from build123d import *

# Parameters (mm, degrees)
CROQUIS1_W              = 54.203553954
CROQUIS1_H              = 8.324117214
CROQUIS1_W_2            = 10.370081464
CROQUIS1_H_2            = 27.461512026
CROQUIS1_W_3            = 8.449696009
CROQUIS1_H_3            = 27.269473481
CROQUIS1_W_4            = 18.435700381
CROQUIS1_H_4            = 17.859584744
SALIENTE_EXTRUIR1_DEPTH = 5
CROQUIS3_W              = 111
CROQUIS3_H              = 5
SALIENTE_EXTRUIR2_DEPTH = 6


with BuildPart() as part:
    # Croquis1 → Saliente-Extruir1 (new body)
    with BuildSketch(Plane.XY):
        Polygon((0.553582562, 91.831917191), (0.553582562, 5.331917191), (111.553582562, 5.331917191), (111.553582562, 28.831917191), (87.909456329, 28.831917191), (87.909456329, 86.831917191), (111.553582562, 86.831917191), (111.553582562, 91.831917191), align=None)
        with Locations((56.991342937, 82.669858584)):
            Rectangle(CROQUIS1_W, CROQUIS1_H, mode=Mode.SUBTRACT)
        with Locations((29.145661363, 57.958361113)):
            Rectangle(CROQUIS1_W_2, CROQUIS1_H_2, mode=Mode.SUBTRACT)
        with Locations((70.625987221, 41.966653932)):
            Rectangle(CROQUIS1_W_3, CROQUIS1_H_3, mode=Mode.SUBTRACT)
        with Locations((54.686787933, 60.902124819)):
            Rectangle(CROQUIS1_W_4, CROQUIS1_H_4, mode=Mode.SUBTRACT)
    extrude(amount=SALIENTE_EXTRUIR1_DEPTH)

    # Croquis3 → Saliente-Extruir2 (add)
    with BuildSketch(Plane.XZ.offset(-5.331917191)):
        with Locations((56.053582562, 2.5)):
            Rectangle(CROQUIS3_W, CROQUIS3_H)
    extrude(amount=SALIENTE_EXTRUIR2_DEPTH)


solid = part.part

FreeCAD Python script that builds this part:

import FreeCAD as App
import Part
import Sketcher

V = App.Vector

doc = App.newDocument("Part")
body = doc.addObject("PartDesign::Body", "Body")

# Sketch on XY plane
sketch1 = doc.addObject("Sketcher::SketchObject", "Sketch")
body.addObject(sketch1)
sketch1.AttachmentSupport = (doc.XY_Plane, [""])
sketch1.MapMode = "FlatFace"
sketch1.addGeometry([
    Part.LineSegment(V(1, 92, 0), V(1, 5, 0)),  # 0
    Part.LineSegment(V(1, 5, 0), V(112, 5, 0)),  # 1
    Part.LineSegment(V(112, 5, 0), V(112, 29, 0)),  # 2
    Part.LineSegment(V(112, 29, 0), V(88, 29, 0)),  # 3
    Part.LineSegment(V(88, 29, 0), V(88, 87, 0)),  # 4
    Part.LineSegment(V(88, 87, 0), V(112, 87, 0)),  # 5
    Part.LineSegment(V(112, 87, 0), V(112, 92, 0)),  # 6
    Part.LineSegment(V(112, 92, 0), V(1, 92, 0)),  # 7
    Part.LineSegment(V(75, 28, 0), V(66, 28, 0)),  # 8
    Part.LineSegment(V(66, 28, 0), V(66, 56, 0)),  # 9
    Part.LineSegment(V(66, 56, 0), V(75, 56, 0)),  # 10
    Part.LineSegment(V(75, 56, 0), V(75, 28, 0)),  # 11
    Part.LineSegment(V(34, 44, 0), V(24, 44, 0)),  # 12
    Part.LineSegment(V(24, 44, 0), V(24, 72, 0)),  # 13
    Part.LineSegment(V(24, 72, 0), V(34, 72, 0)),  # 14
    Part.LineSegment(V(34, 72, 0), V(34, 44, 0)),  # 15
    Part.LineSegment(V(64, 52, 0), V(45, 52, 0)),  # 16
    Part.LineSegment(V(45, 52, 0), V(45, 70, 0)),  # 17
    Part.LineSegment(V(45, 70, 0), V(64, 70, 0)),  # 18
    Part.LineSegment(V(64, 70, 0), V(64, 52, 0)),  # 19
    Part.LineSegment(V(84, 79, 0), V(30, 79, 0)),  # 20
    Part.LineSegment(V(30, 79, 0), V(30, 87, 0)),  # 21
    Part.LineSegment(V(30, 87, 0), V(84, 87, 0)),  # 22
    Part.LineSegment(V(84, 87, 0), V(84, 79, 0)),  # 23
], False)
sketch1.addConstraint([
    Sketcher.Constraint("Coincident", 0, 2, 1, 1),
    Sketcher.Constraint("Coincident", 1, 2, 2, 1),
    Sketcher.Constraint("Coincident", 2, 2, 3, 1),
    Sketcher.Constraint("Coincident", 3, 2, 4, 1),
    Sketcher.Constraint("Coincident", 4, 2, 5, 1),
    Sketcher.Constraint("Coincident", 5, 2, 6, 1),
    Sketcher.Constraint("Coincident", 6, 2, 7, 1),
    Sketcher.Constraint("Coincident", 7, 2, 0, 1),
    Sketcher.Constraint("Coincident", 8, 2, 9, 1),
    Sketcher.Constraint("Coincident", 9, 2, 10, 1),
    Sketcher.Constraint("Coincident", 10, 2, 11, 1),
    Sketcher.Constraint("Coincident", 11, 2, 8, 1),
    Sketcher.Constraint("Coincident", 12, 2, 13, 1),
    Sketcher.Constraint("Coincident", 13, 2, 14, 1),
    Sketcher.Constraint("Coincident", 14, 2, 15, 1),
    Sketcher.Constraint("Coincident", 15, 2, 12, 1),
    Sketcher.Constraint("Coincident", 16, 2, 17, 1),
    Sketcher.Constraint("Coincident", 17, 2, 18, 1),
    Sketcher.Constraint("Coincident", 18, 2, 19, 1),
    Sketcher.Constraint("Coincident", 19, 2, 16, 1),
    Sketcher.Constraint("Coincident", 20, 2, 21, 1),
    Sketcher.Constraint("Coincident", 21, 2, 22, 1),
    Sketcher.Constraint("Coincident", 22, 2, 23, 1),
    Sketcher.Constraint("Coincident", 23, 2, 20, 1),
    Sketcher.Constraint("Vertical", 0),
    Sketcher.Constraint("Horizontal", 1),
    Sketcher.Constraint("Vertical", 2),
    Sketcher.Constraint("Horizontal", 3),
    Sketcher.Constraint("Vertical", 4),
    Sketcher.Constraint("Horizontal", 5),
    Sketcher.Constraint("Vertical", 6),
    Sketcher.Constraint("Horizontal", 7),
    Sketcher.Constraint("Horizontal", 8),
    Sketcher.Constraint("Vertical", 9),
    Sketcher.Constraint("Horizontal", 10),
    Sketcher.Constraint("Vertical", 11),
    Sketcher.Constraint("Horizontal", 12),
    Sketcher.Constraint("Vertical", 13),
    Sketcher.Constraint("Horizontal", 14),
    Sketcher.Constraint("Vertical", 15),
    Sketcher.Constraint("Horizontal", 16),
    Sketcher.Constraint("Vertical", 17),
    Sketcher.Constraint("Horizontal", 18),
    Sketcher.Constraint("Vertical", 19),
    Sketcher.Constraint("Horizontal", 20),
    Sketcher.Constraint("Vertical", 21),
    Sketcher.Constraint("Horizontal", 22),
    Sketcher.Constraint("Vertical", 23),
    Sketcher.Constraint("Horizontal", 5, 2, 21, 2),
    Sketcher.Constraint("Vertical", 2, 2, 5, 2),
    Sketcher.Constraint("DistanceX", 1, 1, 1, 2, 111.0),
    Sketcher.Constraint("DistanceY", 4, 1, 4, 2, 58.0),
    Sketcher.Constraint("DistanceY", 6, 1, 6, 2, 5.0),
    Sketcher.Constraint("DistanceY", 0, 2, 0, 1, 86.5),
    Sketcher.Constraint("DistanceY", 1, 2, 8, 2, 23.0),
    Sketcher.Constraint("DistanceY", 18, 2, 4, 2, 17.0),
    Sketcher.Constraint("DistanceX", 16, 2, 16, 1, 18.4357),
    Sketcher.Constraint("DistanceX", 12, 2, 12, 1, 10.370081),
    Sketcher.Constraint("DistanceY", -1, 1, 20, 2, 78.5078),
    Sketcher.Constraint("DistanceY", 13, 2, 7, 2, 20.1428),
    Sketcher.Constraint("DistanceX", 16, 2, 9, 2, 20.932201),
    Sketcher.Constraint("DistanceX", 3, 2, 3, 1, 23.644126),
    Sketcher.Constraint("DistanceX", 8, 2, 8, 1, 8.449696),
    Sketcher.Constraint("DistanceX", 20, 2, 20, 1, 54.203554),
    Sketcher.Constraint("DistanceY", 9, 1, 9, 2, 27.269473),
    Sketcher.Constraint("DistanceY", 13, 1, 13, 2, 27.461512),
    Sketcher.Constraint("DistanceY", 17, 1, 17, 2, 17.859585),
    Sketcher.Constraint("DistanceY", 21, 1, 21, 2, 8.324117),
    Sketcher.Constraint("DistanceX", -1, 1, 8, 2, 66.401139),
    Sketcher.Constraint("DistanceX", -1, 1, 12, 2, 23.960621),
    Sketcher.Constraint("DistanceX", -1, 1, 22, 2, 84.09312),
    Sketcher.Constraint("DistanceX", 10, 2, 3, 2, 13.058621),
])
pad1 = doc.addObject("PartDesign::Pad", "Pad")
body.addObject(pad1)
pad1.Profile = sketch1
pad1.Length = 5

# Sketch on XZ plane
sketch2 = doc.addObject("Sketcher::SketchObject", "Sketch001")
body.addObject(sketch2)
sketch2.AttachmentSupport = (doc.XZ_Plane, [""])
sketch2.MapMode = "FlatFace"
sketch2.AttachmentOffset = App.Placement(V(0, 0, -5.331917), App.Rotation())
sketch2.addGeometry([
    Part.LineSegment(V(1, 5, 0), V(1, 0, 0)),
    Part.LineSegment(V(1, 0, 0), V(112, 0, 0)),
    Part.LineSegment(V(112, 0, 0), V(112, 5, 0)),
    Part.LineSegment(V(112, 5, 0), V(1, 5, 0)),
], False)
sketch2.addConstraint([
    Sketcher.Constraint("Coincident", 0, 2, 1, 1),
    Sketcher.Constraint("Coincident", 1, 2, 2, 1),
    Sketcher.Constraint("Coincident", 2, 2, 3, 1),
    Sketcher.Constraint("Coincident", 3, 2, 0, 1),
    Sketcher.Constraint("Vertical", 0),
    Sketcher.Constraint("Horizontal", 1),
    Sketcher.Constraint("Vertical", 2),
    Sketcher.Constraint("Horizontal", 3),
    Sketcher.Constraint("PointOnObject", 0, 2, -1),
    Sketcher.Constraint("DistanceX", 1, 1, 1, 2, 111.0),
    Sketcher.Constraint("DistanceY", 0, 2, 0, 1, 5.0),
    Sketcher.Constraint("DistanceX", -1, 1, 0, 2, 0.553583),
])
pad2 = doc.addObject("PartDesign::Pad", "Pad001")
body.addObject(pad2)
pad2.Profile = sketch2
pad2.Length = 6

doc.recompute()
